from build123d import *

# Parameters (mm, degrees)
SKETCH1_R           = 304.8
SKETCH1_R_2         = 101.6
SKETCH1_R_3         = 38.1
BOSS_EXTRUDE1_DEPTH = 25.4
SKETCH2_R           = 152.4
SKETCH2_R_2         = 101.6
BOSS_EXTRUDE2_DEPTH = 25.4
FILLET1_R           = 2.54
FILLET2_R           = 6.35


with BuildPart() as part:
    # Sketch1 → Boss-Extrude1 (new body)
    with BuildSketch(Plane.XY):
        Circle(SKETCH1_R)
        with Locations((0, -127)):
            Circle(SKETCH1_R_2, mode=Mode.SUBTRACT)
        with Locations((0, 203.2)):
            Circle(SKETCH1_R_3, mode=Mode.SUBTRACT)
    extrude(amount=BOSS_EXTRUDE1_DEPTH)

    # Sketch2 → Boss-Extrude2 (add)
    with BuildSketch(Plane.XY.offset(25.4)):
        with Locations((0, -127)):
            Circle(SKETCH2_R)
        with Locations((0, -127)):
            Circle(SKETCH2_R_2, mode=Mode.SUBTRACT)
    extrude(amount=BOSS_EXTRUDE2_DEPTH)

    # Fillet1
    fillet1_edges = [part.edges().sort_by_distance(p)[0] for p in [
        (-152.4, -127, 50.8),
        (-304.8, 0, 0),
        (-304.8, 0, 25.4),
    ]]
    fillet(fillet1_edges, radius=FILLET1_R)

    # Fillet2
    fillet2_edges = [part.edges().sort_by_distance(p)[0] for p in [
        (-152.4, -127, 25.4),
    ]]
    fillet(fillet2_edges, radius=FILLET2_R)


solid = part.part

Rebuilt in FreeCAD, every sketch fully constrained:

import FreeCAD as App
import Part
import Sketcher
Q = App.Units.Quantity


def edges_at(feature, points):
    """Names of the edges that pass closest to the given points."""
    edges = feature.Shape.Edges
    near = lambda p: min(range(len(edges)), key=lambda i: edges[i].distToShape(Part.Vertex(*p))[0])
    return sorted({f"Edge{near(p) + 1}" for p in points})

doc = App.newDocument("Part")
params = doc.addObject("Spreadsheet::Sheet", "Params")
for row, (alias, value) in enumerate([
    ("sketch1_diameter", "24 in"),
    ("sketch1_diameter2", "8 in"),
    ("sketch1_diameter3", "3 in"),
    ("pad1_length", "1 in"),
    ("sketch2_diameter", "12 in"),
    ("sketch2_diameter2", "8 in"),
    ("pad2_length", "1 in"),
    ("fillet_radius", "0.1 in"),
    ("fillet2_radius", "0.25 in"),
], start=1):
    params.set(f"A{row}", alias)
    params.set(f"B{row}", "=" + value)
    params.setAlias(f"B{row}", alias)

body = doc.addObject("PartDesign::Body", "Body")

# Sketch on XY plane
sketch1 = body.newObject("Sketcher::SketchObject", "Sketch")
sketch1.AttachmentSupport = (doc.getObject("XY_Plane"), [""])
sketch1.MapMode = "FlatFace"
sketch1.addGeometry([
    Part.Circle(App.Vector(0, 0, 0), App.Vector(0, 0, 1), 305),
    Part.Circle(App.Vector(0, -127, 0), App.Vector(0, 0, 1), 102),
    Part.Circle(App.Vector(0, 203, 0), App.Vector(0, 0, 1), 38),
], False)
sketch1.addConstraint([
    Sketcher.Constraint("Coincident", 0, 3, -1, 1),
    Sketcher.Constraint("PointOnObject", 1, 3, -2),
    Sketcher.Constraint("PointOnObject", 2, 3, -2),
    Sketcher.Constraint("Diameter", 0, Q("24 in")),
    Sketcher.Constraint("Diameter", 1, Q("8 in")),
    Sketcher.Constraint("Diameter", 2, Q("3 in")),
    Sketcher.Constraint("DistanceY", 1, 3, -1, 1, Q("5 in")),
    Sketcher.Constraint("DistanceY", -1, 1, 2, 3, Q("8 in")),
])
sketch1.setExpression("Constraints[3]", "Params.sketch1_diameter")
sketch1.setExpression("Constraints[4]", "Params.sketch1_diameter2")
sketch1.setExpression("Constraints[5]", "Params.sketch1_diameter3")
pad1 = body.newObject("PartDesign::Pad", "Pad")
pad1.Profile = sketch1
pad1.setExpression("Length", "Params.pad1_length")

# Sketch on XY plane
sketch2 = body.newObject("Sketcher::SketchObject", "Sketch001")
sketch2.AttachmentSupport = (doc.getObject("XY_Plane"), [""])
sketch2.MapMode = "FlatFace"
sketch2.AttachmentOffset = App.Placement(App.Vector(0, 0, 1 * 25.4), App.Rotation())
sketch2.addGeometry([
    Part.Circle(App.Vector(0, -127, 0), App.Vector(0, 0, 1), 152),
    Part.Circle(App.Vector(0, -127, 0), App.Vector(0, 0, 1), 102),
], False)
sketch2.addConstraint([
    Sketcher.Constraint("Coincident", 1, 3, 0, 3),
    Sketcher.Constraint("PointOnObject", 0, 3, -2),
    Sketcher.Constraint("Diameter", 0, Q("12 in")),
    Sketcher.Constraint("Diameter", 1, Q("8 in")),
    Sketcher.Constraint("DistanceY", 0, 3, -1, 1, Q("5 in")),
])
sketch2.setExpression("Constraints[2]", "Params.sketch2_diameter")
sketch2.setExpression("Constraints[3]", "Params.sketch2_diameter2")
pad2 = body.newObject("PartDesign::Pad", "Pad001")
pad2.Profile = sketch2
pad2.setExpression("Length", "Params.pad2_length")
doc.recompute()

fillet = body.newObject("PartDesign::Fillet", "Fillet")
fillet.Base = (pad2, edges_at(pad2, [(-152.4, -127, 50.8), (-304.8, 0, 0), (-304.8, 0, 25.4)]))
fillet.setExpression("Radius", "Params.fillet_radius")
doc.recompute()

fillet2 = body.newObject("PartDesign::Fillet", "Fillet001")
fillet2.Base = (fillet, edges_at(fillet, [(-152.4, -127, 25.4)]))
fillet2.setExpression("Radius", "Params.fillet2_radius")

doc.recompute()
